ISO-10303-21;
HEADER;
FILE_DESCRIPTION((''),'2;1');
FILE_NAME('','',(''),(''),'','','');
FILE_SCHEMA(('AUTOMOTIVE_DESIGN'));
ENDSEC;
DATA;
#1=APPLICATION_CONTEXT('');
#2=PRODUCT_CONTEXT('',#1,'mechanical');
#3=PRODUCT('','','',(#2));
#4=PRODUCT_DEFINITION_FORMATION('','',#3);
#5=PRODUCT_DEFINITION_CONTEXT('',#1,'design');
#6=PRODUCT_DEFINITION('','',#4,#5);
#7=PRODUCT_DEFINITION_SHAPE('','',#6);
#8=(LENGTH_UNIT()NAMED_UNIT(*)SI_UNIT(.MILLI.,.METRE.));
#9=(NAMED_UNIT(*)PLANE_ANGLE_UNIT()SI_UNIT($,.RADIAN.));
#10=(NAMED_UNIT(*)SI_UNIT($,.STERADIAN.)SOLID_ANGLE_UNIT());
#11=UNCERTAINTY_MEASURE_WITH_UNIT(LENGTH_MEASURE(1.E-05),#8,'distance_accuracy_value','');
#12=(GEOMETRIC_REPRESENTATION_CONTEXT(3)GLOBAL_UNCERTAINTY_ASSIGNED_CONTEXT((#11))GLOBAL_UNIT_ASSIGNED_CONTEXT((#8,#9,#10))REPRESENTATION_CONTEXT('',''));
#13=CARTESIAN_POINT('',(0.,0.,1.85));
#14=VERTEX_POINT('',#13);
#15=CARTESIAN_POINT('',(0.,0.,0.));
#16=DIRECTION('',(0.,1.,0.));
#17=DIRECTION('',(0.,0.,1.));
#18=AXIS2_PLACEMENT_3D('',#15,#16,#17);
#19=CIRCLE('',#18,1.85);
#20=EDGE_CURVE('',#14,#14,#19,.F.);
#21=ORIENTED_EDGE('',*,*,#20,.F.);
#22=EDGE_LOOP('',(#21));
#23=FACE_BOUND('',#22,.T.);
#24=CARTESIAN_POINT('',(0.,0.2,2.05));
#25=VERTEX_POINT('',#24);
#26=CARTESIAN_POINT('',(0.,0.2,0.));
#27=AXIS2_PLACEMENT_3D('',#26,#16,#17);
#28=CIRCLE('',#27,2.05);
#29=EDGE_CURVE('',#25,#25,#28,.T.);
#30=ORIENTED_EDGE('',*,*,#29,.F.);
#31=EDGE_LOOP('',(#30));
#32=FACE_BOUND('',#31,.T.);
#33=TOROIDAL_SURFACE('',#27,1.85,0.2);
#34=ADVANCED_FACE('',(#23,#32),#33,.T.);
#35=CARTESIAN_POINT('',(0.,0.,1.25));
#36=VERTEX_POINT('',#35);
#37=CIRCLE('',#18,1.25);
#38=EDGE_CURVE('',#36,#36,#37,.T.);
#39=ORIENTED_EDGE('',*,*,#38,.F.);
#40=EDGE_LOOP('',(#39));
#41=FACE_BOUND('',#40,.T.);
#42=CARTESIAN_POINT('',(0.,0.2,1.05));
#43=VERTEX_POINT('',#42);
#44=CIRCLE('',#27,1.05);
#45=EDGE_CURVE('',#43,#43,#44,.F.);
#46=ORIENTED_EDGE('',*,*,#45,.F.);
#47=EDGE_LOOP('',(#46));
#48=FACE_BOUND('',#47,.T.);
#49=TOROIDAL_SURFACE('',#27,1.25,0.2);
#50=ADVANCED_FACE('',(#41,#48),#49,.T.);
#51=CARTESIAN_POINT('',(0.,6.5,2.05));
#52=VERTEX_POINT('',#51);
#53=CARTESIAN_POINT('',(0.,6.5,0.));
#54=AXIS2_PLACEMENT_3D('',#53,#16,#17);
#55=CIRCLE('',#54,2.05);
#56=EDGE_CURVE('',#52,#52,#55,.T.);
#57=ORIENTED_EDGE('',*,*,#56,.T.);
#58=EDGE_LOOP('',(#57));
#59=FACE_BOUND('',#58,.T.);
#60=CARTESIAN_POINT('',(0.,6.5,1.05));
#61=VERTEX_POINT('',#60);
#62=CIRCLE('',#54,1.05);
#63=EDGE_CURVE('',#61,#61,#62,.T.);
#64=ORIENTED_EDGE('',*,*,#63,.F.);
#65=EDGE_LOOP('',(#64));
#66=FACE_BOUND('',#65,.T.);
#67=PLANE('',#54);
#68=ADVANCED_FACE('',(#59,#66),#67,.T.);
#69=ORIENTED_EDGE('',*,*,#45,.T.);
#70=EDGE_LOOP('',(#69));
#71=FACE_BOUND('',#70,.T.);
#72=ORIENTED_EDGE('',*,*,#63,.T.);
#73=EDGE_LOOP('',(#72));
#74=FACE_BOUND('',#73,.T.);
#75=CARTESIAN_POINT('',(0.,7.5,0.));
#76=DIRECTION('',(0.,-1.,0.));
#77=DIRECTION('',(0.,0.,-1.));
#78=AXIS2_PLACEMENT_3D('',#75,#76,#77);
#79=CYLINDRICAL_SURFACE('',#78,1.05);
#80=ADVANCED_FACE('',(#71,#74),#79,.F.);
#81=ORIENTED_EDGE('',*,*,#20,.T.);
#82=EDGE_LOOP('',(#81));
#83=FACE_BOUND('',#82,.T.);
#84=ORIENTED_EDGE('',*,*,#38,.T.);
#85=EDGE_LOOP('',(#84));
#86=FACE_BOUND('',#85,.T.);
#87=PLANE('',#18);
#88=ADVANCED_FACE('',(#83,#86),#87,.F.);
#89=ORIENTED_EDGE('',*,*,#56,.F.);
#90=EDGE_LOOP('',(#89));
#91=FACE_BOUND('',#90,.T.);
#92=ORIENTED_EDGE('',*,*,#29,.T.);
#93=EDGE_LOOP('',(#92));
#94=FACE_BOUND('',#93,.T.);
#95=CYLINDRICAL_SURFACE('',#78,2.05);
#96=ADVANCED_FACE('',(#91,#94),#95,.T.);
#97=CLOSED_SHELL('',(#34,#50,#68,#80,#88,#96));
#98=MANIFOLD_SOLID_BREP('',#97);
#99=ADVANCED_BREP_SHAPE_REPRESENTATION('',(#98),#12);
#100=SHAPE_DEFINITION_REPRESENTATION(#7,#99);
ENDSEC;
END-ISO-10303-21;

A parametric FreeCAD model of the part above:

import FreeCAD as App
import Part
import Sketcher


def edges_at(feature, points):
    """Names of the edges that pass closest to the given points."""
    edges = feature.Shape.Edges
    near = lambda p: min(range(len(edges)), key=lambda i: edges[i].distToShape(Part.Vertex(*p))[0])
    return sorted({f"Edge{near(p) + 1}" for p in points})

doc = App.newDocument("Part")
body = doc.addObject("PartDesign::Body", "Body")

# Sketch on XZ plane
sketch1 = body.newObject("Sketcher::SketchObject", "Sketch")
sketch1.AttachmentSupport = (doc.getObject("XZ_Plane"), [""])
sketch1.MapMode = "FlatFace"
sketch1.addGeometry([
    Part.Circle(App.Vector(0, 0, 0), App.Vector(0, 0, 1), 2),
    Part.Circle(App.Vector(0, 0, 0), App.Vector(0, 0, 1), 1.1),
], False)
sketch1.addConstraint([
    Sketcher.Constraint("Coincident", 0, 3, -1, 1),
    Sketcher.Constraint("Coincident", 1, 3, -1, 1),
    Sketcher.Constraint("Diameter", 0, 4.1),
    Sketcher.Constraint("Diameter", 1, 2.1),
])
pad1 = body.newObject("PartDesign::Pad", "Pad")
pad1.Profile = sketch1
pad1.Length = 7.5
pad1.Reversed = True
doc.recompute()

fillet = body.newObject("PartDesign::Fillet", "Fillet")
fillet.Base = (pad1, edges_at(pad1, [
    (-2.05, 0, 0),
    (-2.05, 7.5, 0),
    (-1.05, 0, 0),
    (-1.05, 7.5, 0),
]))
fillet.Radius = 0.2

# Sketch on XZ plane
sketch2 = body.newObject("Sketcher::SketchObject", "Sketch001")
sketch2.AttachmentSupport = (doc.getObject("XZ_Plane"), [""])
sketch2.MapMode = "FlatFace"
sketch2.AttachmentOffset = App.Placement(App.Vector(0, 0, -7.5), App.Rotation())
sketch2.addGeometry(Part.Circle(App.Vector(0, 0, 0), App.Vector(0, 0, 1), 3), False)
sketch2.addConstraint([
    Sketcher.Constraint("Coincident", 0, 3, -1, 1),
    Sketcher.Constraint("Diameter", 0, 6.1),
])
pocket1 = body.newObject("PartDesign::Pocket", "Pocket")
pocket1.Profile = sketch2
pocket1.Length = 1
pocket1.Reversed = True

doc.recompute()
